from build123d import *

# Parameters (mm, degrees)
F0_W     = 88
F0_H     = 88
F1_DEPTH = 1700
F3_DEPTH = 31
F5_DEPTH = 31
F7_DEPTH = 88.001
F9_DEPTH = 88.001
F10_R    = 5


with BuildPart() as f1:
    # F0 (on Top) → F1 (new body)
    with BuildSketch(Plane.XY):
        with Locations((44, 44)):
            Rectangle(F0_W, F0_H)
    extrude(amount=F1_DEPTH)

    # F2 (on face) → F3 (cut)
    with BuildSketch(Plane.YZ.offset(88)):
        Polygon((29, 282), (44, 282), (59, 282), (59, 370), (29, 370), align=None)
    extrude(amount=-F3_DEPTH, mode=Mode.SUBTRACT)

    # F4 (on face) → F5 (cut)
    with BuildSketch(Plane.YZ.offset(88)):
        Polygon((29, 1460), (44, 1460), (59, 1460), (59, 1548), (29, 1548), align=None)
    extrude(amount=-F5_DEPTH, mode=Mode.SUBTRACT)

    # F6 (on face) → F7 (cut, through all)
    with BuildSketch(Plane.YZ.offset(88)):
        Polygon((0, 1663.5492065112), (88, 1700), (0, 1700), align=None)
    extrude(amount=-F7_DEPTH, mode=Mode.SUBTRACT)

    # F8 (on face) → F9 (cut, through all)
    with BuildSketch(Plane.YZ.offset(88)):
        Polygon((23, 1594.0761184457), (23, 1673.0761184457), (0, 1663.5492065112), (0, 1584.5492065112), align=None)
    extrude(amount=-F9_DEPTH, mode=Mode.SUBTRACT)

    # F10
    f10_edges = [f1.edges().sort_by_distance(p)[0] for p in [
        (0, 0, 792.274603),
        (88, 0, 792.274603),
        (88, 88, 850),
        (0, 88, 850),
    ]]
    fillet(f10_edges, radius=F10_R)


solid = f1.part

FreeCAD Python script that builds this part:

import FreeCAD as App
import Part
import Sketcher
Q = App.Units.Quantity


def edges_at(feature, points):
    """Names of the edges that pass closest to the given points."""
    edges = feature.Shape.Edges
    near = lambda p: min(range(len(edges)), key=lambda i: edges[i].distToShape(Part.Vertex(*p))[0])
    return sorted({f"Edge{near(p) + 1}" for p in points})

doc = App.newDocument("Part")
body = doc.addObject("PartDesign::Body", "Body")

sketch1 = body.newObject("Sketcher::SketchObject", "Sketch")
sketch1.AttachmentSupport = (doc.getObject("XY_Plane"), [""])
sketch1.MapMode = "FlatFace"
sketch1.addGeometry([
    Part.LineSegment(App.Vector(0, 88, 0), App.Vector(0, 0, 0)),
    Part.LineSegment(App.Vector(0, 0, 0), App.Vector(88, 0, 0)),
    Part.LineSegment(App.Vector(88, 0, 0), App.Vector(88, 88, 0)),
    Part.LineSegment(App.Vector(88, 88, 0), App.Vector(0, 88, 0)),
], False)
sketch1.addConstraint([
    Sketcher.Constraint("Coincident", 0, 2, 1, 1),
    Sketcher.Constraint("Coincident", 1, 2, 2, 1),
    Sketcher.Constraint("Coincident", 2, 2, 3, 1),
    Sketcher.Constraint("Coincident", 3, 2, 0, 1),
    Sketcher.Constraint("Vertical", 0),
    Sketcher.Constraint("Horizontal", 1),
    Sketcher.Constraint("Vertical", 2),
    Sketcher.Constraint("Horizontal", 3),
    Sketcher.Constraint("Coincident", 0, 2, -1, 1),
    Sketcher.Constraint("Equal", 3, 0),
    Sketcher.Constraint("DistanceX", 1, 1, 1, 2, 88.0),
])
pad1 = body.newObject("PartDesign::Pad", "Pad")
pad1.Profile = sketch1
pad1.Length = 1700

sketch2 = body.newObject("Sketcher::SketchObject", "Sketch001")
sketch2.AttachmentSupport = (doc.getObject("YZ_Plane"), [""])
sketch2.MapMode = "FlatFace"
sketch2.AttachmentOffset = App.Placement(App.Vector(0, 0, 88), App.Rotation())
sketch2.addGeometry([
    Part.LineSegment(App.Vector(29, 282, 0), App.Vector(59, 282, 0)),
    Part.LineSegment(App.Vector(59, 282, 0), App.Vector(59, 370, 0)),
    Part.LineSegment(App.Vector(59, 370, 0), App.Vector(29, 370, 0)),
    Part.LineSegment(App.Vector(29, 370, 0), App.Vector(29, 282, 0)),
], False)
sketch2.addConstraint([
    Sketcher.Constraint("Coincident", 0, 2, 1, 1),
    Sketcher.Constraint("Coincident", 1, 2, 2, 1),
    Sketcher.Constraint("Coincident", 2, 2, 3, 1),
    Sketcher.Constraint("Coincident", 3, 2, 0, 1),
    Sketcher.Constraint("Horizontal", 0),
    Sketcher.Constraint("Vertical", 1),
    Sketcher.Constraint("Horizontal", 2),
    Sketcher.Constraint("Vertical", 3),
    Sketcher.Constraint("DistanceX", 0, 1, 0, 2, 30.0),
    Sketcher.Constraint("DistanceY", 1, 1, 1, 2, 88.0),
    Sketcher.Constraint("DistanceX", -1, 1, 0, 2, 59.0),
    Sketcher.Constraint("DistanceY", -1, 1, 0, 2, 282.0),
])
pocket1 = body.newObject("PartDesign::Pocket", "Pocket")
pocket1.Profile = sketch2
pocket1.Length = 31

sketch3 = body.newObject("Sketcher::SketchObject", "Sketch002")
sketch3.AttachmentSupport = (doc.getObject("YZ_Plane"), [""])
sketch3.MapMode = "FlatFace"
sketch3.AttachmentOffset = App.Placement(App.Vector(0, 0, 88), App.Rotation())
sketch3.addGeometry([
    Part.LineSegment(App.Vector(29, 1460, 0), App.Vector(59, 1460, 0)),
    Part.LineSegment(App.Vector(59, 1460, 0), App.Vector(59, 1548, 0)),
    Part.LineSegment(App.Vector(59, 1548, 0), App.Vector(29, 1548, 0)),
    Part.LineSegment(App.Vector(29, 1548, 0), App.Vector(29, 1460, 0)),
], False)
sketch3.addConstraint([
    Sketcher.Constraint("Coincident", 0, 2, 1, 1),
    Sketcher.Constraint("Coincident", 1, 2, 2, 1),
    Sketcher.Constraint("Coincident", 2, 2, 3, 1),
    Sketcher.Constraint("Coincident", 3, 2, 0, 1),
    Sketcher.Constraint("Horizontal", 0),
    Sketcher.Constraint("Vertical", 1),
    Sketcher.Constraint("Horizontal", 2),
    Sketcher.Constraint("Vertical", 3),
    Sketcher.Constraint("DistanceX", 0, 1, 0, 2, 30.0),
    Sketcher.Constraint("DistanceY", 1, 1, 1, 2, 88.0),
    Sketcher.Constraint("DistanceX", -1, 1, 0, 2, 59.0),
    Sketcher.Constraint("DistanceY", -1, 1, 0, 2, 1460.0),
])
pocket2 = body.newObject("PartDesign::Pocket", "Pocket001")
pocket2.Profile = sketch3
pocket2.Length = 31

sketch4 = body.newObject("Sketcher::SketchObject", "Sketch003")
sketch4.AttachmentSupport = (doc.getObject("YZ_Plane"), [""])
sketch4.MapMode = "FlatFace"
sketch4.AttachmentOffset = App.Placement(App.Vector(0, 0, 88), App.Rotation())
sketch4.addGeometry([
    Part.LineSegment(App.Vector(0, 1664, 0), App.Vector(88, 1700, 0)),
    Part.LineSegment(App.Vector(88, 1700, 0), App.Vector(0, 1700, 0)),
    Part.LineSegment(App.Vector(0, 1700, 0), App.Vector(0, 1664, 0)),
], False)
sketch4.addConstraint([
    Sketcher.Constraint("Coincident", 0, 2, 1, 1),
    Sketcher.Constraint("Coincident", 1, 2, 2, 1),
    Sketcher.Constraint("Coincident", 2, 2, 0, 1),
    Sketcher.Constraint("Horizontal", 1),
    Sketcher.Constraint("Vertical", 2),
    Sketcher.Constraint("PointOnObject", 1, 2, -2),
    Sketcher.Constraint("DistanceX", 1, 2, 1, 1, 88.0),
    Sketcher.Constraint("DistanceY", -1, 1, 0, 2, 1700.0),
    Sketcher.Constraint("Angle", 0, Q("22.5 deg")),
])
pocket3 = body.newObject("PartDesign::Pocket", "Pocket002")
pocket3.Profile = sketch4
pocket3.Type = "ThroughAll"

sketch5 = body.newObject("Sketcher::SketchObject", "Sketch004")
sketch5.AttachmentSupport = (doc.getObject("YZ_Plane"), [""])
sketch5.MapMode = "FlatFace"
sketch5.AttachmentOffset = App.Placement(App.Vector(0, 0, 88), App.Rotation())
sketch5.addGeometry([
    Part.LineSegment(App.Vector(23, 1594, 0), App.Vector(23, 1673, 0)),
    Part.LineSegment(App.Vector(23, 1673, 0), App.Vector(0, 1664, 0)),
    Part.LineSegment(App.Vector(0, 1664, 0), App.Vector(0, 1585, 0)),
    Part.LineSegment(App.Vector(0, 1585, 0), App.Vector(23, 1594, 0)),
], False)
sketch5.addConstraint([
    Sketcher.Constraint("Coincident", 0, 2, 1, 1),
    Sketcher.Constraint("Coincident", 1, 2, 2, 1),
    Sketcher.Constraint("Coincident", 2, 2, 3, 1),
    Sketcher.Constraint("Coincident", 3, 2, 0, 1),
    Sketcher.Constraint("Vertical", 0),
    Sketcher.Constraint("Vertical", 2),
    Sketcher.Constraint("PointOnObject", 1, 2, -2),
    Sketcher.Constraint("Parallel", 1, 3),
    Sketcher.Constraint("DistanceY", 0, 1, 0, 2, 79.0),
    Sketcher.Constraint("DistanceX", -1, 1, 0, 2, 23.0),
    Sketcher.Constraint("Angle", 1, Q("-157.5 deg")),
    Sketcher.Constraint("DistanceY", -1, 1, 0, 2, 1673.076118),
])
pocket4 = body.newObject("PartDesign::Pocket", "Pocket003")
pocket4.Profile = sketch5
pocket4.Type = "ThroughAll"
doc.recompute()

fillet = body.newObject("PartDesign::Fillet", "Fillet")
fillet.Base = (pocket4, edges_at(pocket4, [
    (0, 0, 792.275),
    (88, 0, 792.275),
    (88, 88, 850),
    (0, 88, 850),
]))
fillet.Radius = 5

doc.recompute()
